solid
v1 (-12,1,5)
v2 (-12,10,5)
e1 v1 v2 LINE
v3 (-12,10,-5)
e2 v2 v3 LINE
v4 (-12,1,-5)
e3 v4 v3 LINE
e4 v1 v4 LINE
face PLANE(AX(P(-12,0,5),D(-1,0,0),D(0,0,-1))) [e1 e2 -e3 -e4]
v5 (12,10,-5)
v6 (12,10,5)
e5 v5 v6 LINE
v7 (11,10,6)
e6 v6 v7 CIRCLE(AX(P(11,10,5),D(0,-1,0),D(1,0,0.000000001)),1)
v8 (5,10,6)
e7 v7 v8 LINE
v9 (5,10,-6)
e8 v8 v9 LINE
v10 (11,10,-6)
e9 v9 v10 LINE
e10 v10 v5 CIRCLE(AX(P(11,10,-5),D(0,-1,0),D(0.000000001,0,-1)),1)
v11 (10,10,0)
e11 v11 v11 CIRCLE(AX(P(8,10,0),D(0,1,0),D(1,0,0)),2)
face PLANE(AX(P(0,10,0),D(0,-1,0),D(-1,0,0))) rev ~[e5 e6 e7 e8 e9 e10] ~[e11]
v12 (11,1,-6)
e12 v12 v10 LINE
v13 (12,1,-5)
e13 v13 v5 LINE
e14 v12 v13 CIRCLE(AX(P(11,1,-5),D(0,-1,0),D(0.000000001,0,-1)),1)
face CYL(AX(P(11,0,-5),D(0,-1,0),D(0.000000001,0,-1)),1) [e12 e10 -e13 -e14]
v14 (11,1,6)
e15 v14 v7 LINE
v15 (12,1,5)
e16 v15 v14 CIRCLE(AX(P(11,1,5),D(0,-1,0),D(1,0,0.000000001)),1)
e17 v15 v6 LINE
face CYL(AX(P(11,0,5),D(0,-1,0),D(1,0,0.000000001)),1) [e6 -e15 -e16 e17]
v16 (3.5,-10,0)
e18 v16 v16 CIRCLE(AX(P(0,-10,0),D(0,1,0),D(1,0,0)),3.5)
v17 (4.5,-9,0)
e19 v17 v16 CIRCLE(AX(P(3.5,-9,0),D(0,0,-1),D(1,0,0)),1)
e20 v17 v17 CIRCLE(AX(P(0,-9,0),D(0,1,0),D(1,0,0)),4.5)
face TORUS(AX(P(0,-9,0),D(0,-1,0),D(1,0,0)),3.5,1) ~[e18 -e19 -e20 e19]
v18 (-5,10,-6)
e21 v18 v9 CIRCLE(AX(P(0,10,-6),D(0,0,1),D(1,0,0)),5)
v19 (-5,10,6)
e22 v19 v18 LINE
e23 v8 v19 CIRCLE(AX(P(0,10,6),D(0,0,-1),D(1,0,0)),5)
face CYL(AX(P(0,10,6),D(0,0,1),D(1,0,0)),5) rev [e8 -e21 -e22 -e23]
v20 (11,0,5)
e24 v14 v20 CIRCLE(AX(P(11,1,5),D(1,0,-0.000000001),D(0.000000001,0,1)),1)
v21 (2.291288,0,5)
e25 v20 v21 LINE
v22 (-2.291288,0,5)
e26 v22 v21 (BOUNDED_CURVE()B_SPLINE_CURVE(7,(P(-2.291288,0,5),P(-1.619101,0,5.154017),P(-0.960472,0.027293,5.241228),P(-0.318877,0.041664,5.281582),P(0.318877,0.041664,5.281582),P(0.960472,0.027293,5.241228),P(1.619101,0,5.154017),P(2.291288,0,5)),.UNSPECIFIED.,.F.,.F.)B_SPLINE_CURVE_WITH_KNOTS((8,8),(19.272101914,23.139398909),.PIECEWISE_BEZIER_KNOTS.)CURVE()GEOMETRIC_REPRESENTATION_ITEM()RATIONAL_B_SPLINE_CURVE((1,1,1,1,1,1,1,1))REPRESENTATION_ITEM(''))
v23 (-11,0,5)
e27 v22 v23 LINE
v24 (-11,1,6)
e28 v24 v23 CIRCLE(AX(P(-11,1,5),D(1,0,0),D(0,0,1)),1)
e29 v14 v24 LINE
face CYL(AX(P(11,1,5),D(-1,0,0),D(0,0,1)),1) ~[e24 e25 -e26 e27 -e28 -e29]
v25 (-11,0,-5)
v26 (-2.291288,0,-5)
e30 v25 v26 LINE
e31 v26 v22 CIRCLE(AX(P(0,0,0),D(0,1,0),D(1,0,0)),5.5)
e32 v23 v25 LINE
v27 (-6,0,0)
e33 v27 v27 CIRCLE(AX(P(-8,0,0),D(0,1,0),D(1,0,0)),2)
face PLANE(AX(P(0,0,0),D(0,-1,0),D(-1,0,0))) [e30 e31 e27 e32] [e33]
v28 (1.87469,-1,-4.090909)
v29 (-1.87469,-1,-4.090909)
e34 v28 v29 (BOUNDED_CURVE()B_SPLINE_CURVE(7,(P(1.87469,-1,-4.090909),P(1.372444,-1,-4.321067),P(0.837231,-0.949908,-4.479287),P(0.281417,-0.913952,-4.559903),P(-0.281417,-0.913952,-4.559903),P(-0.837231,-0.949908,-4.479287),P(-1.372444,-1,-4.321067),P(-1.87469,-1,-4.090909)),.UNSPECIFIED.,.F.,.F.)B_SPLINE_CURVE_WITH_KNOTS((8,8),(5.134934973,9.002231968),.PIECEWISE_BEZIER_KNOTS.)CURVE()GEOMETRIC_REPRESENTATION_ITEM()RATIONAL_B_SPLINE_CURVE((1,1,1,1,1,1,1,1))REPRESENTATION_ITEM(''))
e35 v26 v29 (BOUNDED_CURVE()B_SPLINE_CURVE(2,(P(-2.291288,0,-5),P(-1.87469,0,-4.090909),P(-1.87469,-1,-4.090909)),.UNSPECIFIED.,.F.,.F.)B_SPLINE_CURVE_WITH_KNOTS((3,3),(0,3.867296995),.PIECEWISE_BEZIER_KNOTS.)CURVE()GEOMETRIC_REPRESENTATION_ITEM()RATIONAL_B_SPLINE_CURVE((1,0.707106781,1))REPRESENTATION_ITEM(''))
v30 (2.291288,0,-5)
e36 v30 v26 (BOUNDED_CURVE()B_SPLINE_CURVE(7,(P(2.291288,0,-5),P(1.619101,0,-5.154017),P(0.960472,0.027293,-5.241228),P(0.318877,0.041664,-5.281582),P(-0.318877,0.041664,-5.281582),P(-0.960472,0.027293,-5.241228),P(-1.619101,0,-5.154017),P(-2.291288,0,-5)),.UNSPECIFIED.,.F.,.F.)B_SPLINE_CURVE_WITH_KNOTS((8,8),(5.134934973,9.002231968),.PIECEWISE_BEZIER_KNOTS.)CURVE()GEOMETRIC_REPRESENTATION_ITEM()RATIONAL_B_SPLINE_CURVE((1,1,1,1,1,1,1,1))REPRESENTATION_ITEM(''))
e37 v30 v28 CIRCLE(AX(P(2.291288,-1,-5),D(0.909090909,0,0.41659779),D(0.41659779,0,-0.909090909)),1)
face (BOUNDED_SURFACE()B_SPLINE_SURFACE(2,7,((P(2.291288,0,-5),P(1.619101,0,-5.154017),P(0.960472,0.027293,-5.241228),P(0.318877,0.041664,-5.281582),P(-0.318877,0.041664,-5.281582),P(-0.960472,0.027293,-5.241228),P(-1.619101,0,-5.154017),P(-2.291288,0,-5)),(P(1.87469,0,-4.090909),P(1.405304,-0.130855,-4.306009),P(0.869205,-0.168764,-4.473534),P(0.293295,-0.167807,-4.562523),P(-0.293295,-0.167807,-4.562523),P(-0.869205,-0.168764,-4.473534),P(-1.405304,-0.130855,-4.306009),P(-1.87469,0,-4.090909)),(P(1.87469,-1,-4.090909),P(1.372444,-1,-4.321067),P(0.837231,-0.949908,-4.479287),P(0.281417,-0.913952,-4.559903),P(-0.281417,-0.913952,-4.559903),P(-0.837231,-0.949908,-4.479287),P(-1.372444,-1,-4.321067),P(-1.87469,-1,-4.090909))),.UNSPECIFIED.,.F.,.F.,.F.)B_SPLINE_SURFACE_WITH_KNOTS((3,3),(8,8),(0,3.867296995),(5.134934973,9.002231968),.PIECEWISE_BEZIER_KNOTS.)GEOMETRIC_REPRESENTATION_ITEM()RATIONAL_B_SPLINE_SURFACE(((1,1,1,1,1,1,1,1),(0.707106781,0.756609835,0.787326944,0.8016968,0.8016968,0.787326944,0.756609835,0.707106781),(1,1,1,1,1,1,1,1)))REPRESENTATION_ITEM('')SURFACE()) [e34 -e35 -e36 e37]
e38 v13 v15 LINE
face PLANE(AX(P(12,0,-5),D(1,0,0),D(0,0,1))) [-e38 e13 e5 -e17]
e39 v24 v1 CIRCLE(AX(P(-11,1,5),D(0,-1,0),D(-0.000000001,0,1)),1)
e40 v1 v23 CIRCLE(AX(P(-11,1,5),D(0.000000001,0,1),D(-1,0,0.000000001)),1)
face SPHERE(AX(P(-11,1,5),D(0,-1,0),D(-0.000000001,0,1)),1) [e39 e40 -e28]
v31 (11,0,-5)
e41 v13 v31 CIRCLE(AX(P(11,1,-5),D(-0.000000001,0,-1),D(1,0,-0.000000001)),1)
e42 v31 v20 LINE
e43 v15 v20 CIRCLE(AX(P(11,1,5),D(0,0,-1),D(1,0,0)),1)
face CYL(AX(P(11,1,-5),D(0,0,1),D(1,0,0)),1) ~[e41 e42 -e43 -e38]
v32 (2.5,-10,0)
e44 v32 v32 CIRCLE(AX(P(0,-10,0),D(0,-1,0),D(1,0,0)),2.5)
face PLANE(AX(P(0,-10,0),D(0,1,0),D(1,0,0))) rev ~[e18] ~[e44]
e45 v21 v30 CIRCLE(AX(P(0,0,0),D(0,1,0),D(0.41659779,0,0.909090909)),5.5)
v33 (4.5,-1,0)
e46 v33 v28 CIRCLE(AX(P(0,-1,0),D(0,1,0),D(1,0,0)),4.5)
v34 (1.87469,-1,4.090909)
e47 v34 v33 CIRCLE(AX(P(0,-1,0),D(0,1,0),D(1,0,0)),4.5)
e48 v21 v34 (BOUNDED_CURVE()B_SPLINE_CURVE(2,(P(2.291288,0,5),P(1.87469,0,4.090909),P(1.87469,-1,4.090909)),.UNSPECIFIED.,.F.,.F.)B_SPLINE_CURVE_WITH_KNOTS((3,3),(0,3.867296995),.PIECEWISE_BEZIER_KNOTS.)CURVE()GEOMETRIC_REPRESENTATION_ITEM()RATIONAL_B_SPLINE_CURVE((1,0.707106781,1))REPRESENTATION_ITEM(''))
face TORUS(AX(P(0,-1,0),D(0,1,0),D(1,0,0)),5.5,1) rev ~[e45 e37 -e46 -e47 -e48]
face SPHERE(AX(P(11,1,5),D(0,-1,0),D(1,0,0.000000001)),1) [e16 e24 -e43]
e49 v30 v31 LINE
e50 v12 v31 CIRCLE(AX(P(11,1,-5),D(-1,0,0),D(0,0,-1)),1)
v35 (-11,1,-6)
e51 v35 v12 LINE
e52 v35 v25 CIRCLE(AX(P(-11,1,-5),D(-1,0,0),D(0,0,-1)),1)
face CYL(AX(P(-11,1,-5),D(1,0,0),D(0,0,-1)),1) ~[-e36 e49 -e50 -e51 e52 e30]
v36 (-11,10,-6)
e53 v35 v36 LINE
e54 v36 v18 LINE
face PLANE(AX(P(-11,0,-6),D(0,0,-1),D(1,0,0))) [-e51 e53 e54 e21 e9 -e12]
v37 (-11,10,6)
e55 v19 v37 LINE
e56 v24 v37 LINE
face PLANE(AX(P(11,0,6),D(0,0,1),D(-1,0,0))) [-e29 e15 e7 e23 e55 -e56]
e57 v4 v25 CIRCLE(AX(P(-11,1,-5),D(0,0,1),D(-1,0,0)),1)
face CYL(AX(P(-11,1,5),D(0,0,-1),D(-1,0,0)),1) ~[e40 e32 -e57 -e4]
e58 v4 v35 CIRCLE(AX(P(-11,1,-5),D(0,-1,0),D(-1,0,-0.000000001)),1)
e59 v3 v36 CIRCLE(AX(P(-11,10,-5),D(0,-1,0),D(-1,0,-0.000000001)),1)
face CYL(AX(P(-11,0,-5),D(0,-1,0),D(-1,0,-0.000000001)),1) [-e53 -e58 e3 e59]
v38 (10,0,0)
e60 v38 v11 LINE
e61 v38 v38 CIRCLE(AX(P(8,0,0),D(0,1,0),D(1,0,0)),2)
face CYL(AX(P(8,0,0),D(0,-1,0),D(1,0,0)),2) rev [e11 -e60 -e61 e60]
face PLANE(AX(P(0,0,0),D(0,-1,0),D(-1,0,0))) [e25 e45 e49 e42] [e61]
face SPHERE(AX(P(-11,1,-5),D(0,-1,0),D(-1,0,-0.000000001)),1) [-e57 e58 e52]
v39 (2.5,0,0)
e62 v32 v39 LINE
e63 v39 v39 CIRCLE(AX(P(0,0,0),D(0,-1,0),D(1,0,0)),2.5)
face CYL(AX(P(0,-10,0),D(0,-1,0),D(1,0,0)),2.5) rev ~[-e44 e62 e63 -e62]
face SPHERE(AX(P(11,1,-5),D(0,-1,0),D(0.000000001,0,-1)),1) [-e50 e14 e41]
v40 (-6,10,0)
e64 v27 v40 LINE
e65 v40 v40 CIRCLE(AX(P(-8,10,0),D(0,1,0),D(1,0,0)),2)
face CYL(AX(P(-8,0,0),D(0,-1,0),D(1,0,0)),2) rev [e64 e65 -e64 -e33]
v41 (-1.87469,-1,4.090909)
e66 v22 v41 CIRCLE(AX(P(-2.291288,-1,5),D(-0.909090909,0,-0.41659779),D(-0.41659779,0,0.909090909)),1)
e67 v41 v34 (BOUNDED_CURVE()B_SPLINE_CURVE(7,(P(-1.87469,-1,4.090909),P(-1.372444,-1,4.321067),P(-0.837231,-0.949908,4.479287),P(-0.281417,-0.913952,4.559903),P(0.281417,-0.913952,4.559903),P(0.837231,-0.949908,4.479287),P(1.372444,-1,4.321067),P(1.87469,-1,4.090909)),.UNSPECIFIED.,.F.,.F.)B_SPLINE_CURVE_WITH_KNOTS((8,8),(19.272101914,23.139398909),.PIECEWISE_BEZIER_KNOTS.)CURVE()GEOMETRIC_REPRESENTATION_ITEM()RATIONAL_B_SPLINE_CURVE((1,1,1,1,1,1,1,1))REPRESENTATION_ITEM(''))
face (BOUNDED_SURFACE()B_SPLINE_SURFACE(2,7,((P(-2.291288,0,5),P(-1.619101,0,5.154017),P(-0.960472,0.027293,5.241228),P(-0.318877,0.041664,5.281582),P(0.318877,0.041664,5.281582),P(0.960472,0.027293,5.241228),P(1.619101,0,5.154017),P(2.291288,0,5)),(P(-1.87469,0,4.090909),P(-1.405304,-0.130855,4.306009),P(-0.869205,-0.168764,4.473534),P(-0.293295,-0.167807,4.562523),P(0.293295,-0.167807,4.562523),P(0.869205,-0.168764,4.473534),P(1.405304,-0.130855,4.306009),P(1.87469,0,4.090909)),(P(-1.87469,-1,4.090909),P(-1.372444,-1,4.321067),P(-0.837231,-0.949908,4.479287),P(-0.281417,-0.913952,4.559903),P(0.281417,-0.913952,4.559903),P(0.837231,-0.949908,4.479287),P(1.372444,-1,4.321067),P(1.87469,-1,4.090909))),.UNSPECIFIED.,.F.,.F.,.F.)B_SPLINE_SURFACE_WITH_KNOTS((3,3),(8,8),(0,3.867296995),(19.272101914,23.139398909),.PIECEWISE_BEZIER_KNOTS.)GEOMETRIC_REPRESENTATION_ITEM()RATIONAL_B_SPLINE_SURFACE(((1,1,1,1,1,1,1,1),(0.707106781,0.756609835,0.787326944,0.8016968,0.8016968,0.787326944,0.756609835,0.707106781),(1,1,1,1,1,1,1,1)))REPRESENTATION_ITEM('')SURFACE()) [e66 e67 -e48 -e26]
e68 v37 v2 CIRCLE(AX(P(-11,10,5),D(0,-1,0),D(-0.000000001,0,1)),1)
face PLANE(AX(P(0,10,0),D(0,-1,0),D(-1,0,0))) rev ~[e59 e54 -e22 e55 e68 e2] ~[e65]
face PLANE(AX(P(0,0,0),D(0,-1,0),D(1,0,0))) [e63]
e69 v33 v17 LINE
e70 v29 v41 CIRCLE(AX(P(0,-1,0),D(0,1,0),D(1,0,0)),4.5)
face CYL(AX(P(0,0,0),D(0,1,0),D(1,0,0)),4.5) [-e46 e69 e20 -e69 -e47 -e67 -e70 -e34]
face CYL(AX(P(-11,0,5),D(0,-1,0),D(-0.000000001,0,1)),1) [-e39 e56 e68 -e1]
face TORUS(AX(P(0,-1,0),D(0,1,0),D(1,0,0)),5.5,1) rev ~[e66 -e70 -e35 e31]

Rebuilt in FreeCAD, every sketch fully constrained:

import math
import FreeCAD as App
import Part
import Sketcher

V = App.Vector
Q = App.Units.Quantity


def edges_at(feature, points):
    """Names of the edges that pass closest to the given points."""
    edges = feature.Shape.Edges
    near = lambda p: min(range(len(edges)), key=lambda i: edges[i].distToShape(Part.Vertex(*p))[0])
    return sorted({f"Edge{near(p) + 1}" for p in points})

doc = App.newDocument("Part")
body = doc.addObject("PartDesign::Body", "Body")

sketch1 = body.newObject("Sketcher::SketchObject", "Sketch")
sketch1.AttachmentSupport = (doc.getObject("XZ_Plane"), [""])
sketch1.MapMode = "FlatFace"
sketch1.addGeometry(Part.ArcOfCircle(Part.Circle(V(-11, -5, 0), V(0, 0, 1), 1), math.radians(-180), math.radians(-90)), False)
sketch1.addGeometry(Part.LineSegment(V(-12, -5, 0), V(-12, 5, 0)), False)
sketch1.addGeometry(Part.ArcOfCircle(Part.Circle(V(-11, 5, 0), V(0, 0, 1), 1), math.radians(90), math.radians(180)), False)
sketch1.addGeometry(Part.LineSegment(V(-11, 6, 0), V(11, 6, 0)), False)
sketch1.addGeometry(Part.ArcOfCircle(Part.Circle(V(11, 5, 0), V(0, 0, 1), 1), math.radians(0), math.radians(90)), False)
sketch1.addGeometry(Part.LineSegment(V(12, 5, 0), V(12, -5, 0)), False)
sketch1.addGeometry(Part.ArcOfCircle(Part.Circle(V(11, -5, 0), V(0, 0, 1), 1), math.radians(-90), math.radians(0)), False)
sketch1.addGeometry(Part.LineSegment(V(11, -6, 0), V(-11, -6, 0)), False)
sketch1.addGeometry(Part.Circle(V(8, 0, 0), V(0, 0, 1), 2), False)
sketch1.addGeometry(Part.Circle(V(-8, 0, 0), V(0, 0, 1), 2), False)
sketch1.addConstraint(Sketcher.Constraint("Tangent", 0, 1, 1, 1))
sketch1.addConstraint(Sketcher.Constraint("Tangent", 1, 2, 2, 2))
sketch1.addConstraint(Sketcher.Constraint("Tangent", 2, 1, 3, 1))
sketch1.addConstraint(Sketcher.Constraint("Tangent", 3, 2, 4, 2))
sketch1.addConstraint(Sketcher.Constraint("Tangent", 4, 1, 5, 1))
sketch1.addConstraint(Sketcher.Constraint("Tangent", 5, 2, 6, 2))
sketch1.addConstraint(Sketcher.Constraint("Tangent", 6, 1, 7, 1))
sketch1.addConstraint(Sketcher.Constraint("Tangent", 7, 2, 0, 2))
sketch1.addConstraint(Sketcher.Constraint("Vertical", 1))
sketch1.addConstraint(Sketcher.Constraint("Horizontal", 3))
sketch1.addConstraint(Sketcher.Constraint("Vertical", 5))
sketch1.addConstraint(Sketcher.Constraint("Horizontal", 7))
sketch1.addConstraint(Sketcher.Constraint("Equal", 0, 2))
sketch1.addConstraint(Sketcher.Constraint("Equal", 2, 4))
sketch1.addConstraint(Sketcher.Constraint("Equal", 4, 6))
sketch1.addConstraint(Sketcher.Constraint("Equal", 8, 9))
sketch1.addConstraint(Sketcher.Constraint("Symmetric", 0, 3, 4, 3, -1, 1))
sketch1.addConstraint(Sketcher.Constraint("Symmetric", 8, 3, 9, 3, -1, 1))
sketch1.addConstraint(Sketcher.Constraint("PointOnObject", 8, 3, -1))
sketch1.addConstraint(Sketcher.Constraint("Diameter", 8, Q("4 mm")))
sketch1.addConstraint(Sketcher.Constraint("Radius", 0, Q("1 mm")))
sketch1.addConstraint(Sketcher.Constraint("DistanceX", 3, 1, 3, 2, Q("22 mm")))
sketch1.addConstraint(Sketcher.Constraint("DistanceY", 1, 1, 1, 2, Q("10 mm")))
sketch1.addConstraint(Sketcher.Constraint("DistanceX", -1, 1, 8, 3, Q("8 mm")))
pad1 = body.newObject("PartDesign::Pad", "Pad")
pad1.Profile = sketch1
pad1.Length = 10
pad1.Reversed = True

sketch2 = body.newObject("Sketcher::SketchObject", "Sketch001")
sketch2.AttachmentSupport = (doc.getObject("XZ_Plane"), [""])
sketch2.MapMode = "FlatFace"
sketch2.addGeometry(Part.Circle(V(0, 0, 0), V(0, 0, 1), 4.5), False)
sketch2.addConstraint(Sketcher.Constraint("Coincident", 0, 3, -1, 1))
sketch2.addConstraint(Sketcher.Constraint("Diameter", 0, Q("9 mm")))
pad2 = body.newObject("PartDesign::Pad", "Pad001")
pad2.Profile = sketch2
pad2.Length = 10

sketch3 = body.newObject("Sketcher::SketchObject", "Sketch002")
sketch3.AttachmentSupport = (doc.getObject("XY_Plane"), [""])
sketch3.MapMode = "FlatFace"
sketch3.AttachmentOffset = App.Placement(V(0, 0, 6), App.Rotation())
sketch3.addGeometry(Part.LineSegment(V(5, 10, 0), V(-5, 10, 0)), False)
sketch3.addGeometry(Part.ArcOfCircle(Part.Circle(V(0, 10, 0), V(0, 0, 1), 5), math.radians(180), math.radians(360)), False)
sketch3.addConstraint(Sketcher.Constraint("Coincident", 0, 1, 1, 2))
sketch3.addConstraint(Sketcher.Constraint("Coincident", 1, 1, 0, 2))
sketch3.addConstraint(Sketcher.Constraint("Horizontal", 0))
sketch3.addConstraint(Sketcher.Constraint("PointOnObject", 1, 3, -2))
sketch3.addConstraint(Sketcher.Constraint("Horizontal", 1, 3, 0, 1))
sketch3.addConstraint(Sketcher.Constraint("Radius", 1, Q("5 mm")))
sketch3.addConstraint(Sketcher.Constraint("DistanceY", -1, 1, 1, 3, Q("10 mm")))
pocket1 = body.newObject("PartDesign::Pocket", "Pocket")
pocket1.Profile = sketch3
pocket1.Type = "ThroughAll"
doc.recompute()

fillet = body.newObject("PartDesign::Fillet", "Fillet")
fillet.Base = (pocket1, edges_at(pocket1, [
    (0, 0, -6),
    (11.707, 0, -5.707),
    (12, 0, 0),
    (11.707, 0, 5.707),
    (0, 0, 6),
    (-11.707, 0, 5.707),
    (-12, 0, 0),
    (-11.707, 0, -5.707),
    (-4.5, -10, 0),
]))
fillet.Radius = 1
doc.recompute()

fillet2 = body.newObject("PartDesign::Fillet", "Fillet001")
fillet2.Base = (fillet, edges_at(fillet, [(-4.5, 0, 0)]))
fillet2.Radius = 1

sketch4 = body.newObject("Sketcher::SketchObject", "Sketch003")
sketch4.AttachmentSupport = (doc.getObject("XZ_Plane"), [""])
sketch4.MapMode = "FlatFace"
sketch4.AttachmentOffset = App.Placement(V(0, 0, 10), App.Rotation())
sketch4.addGeometry(Part.Circle(V(0, 0, 0), V(0, 0, 1), 2.5), False)
sketch4.addConstraint(Sketcher.Constraint("Coincident", 0, 3, -1, 1))
sketch4.addConstraint(Sketcher.Constraint("Diameter", 0, Q("5 mm")))
pocket2 = body.newObject("PartDesign::Pocket", "Pocket001")
pocket2.Profile = sketch4
pocket2.Length = 10

doc.recompute()
